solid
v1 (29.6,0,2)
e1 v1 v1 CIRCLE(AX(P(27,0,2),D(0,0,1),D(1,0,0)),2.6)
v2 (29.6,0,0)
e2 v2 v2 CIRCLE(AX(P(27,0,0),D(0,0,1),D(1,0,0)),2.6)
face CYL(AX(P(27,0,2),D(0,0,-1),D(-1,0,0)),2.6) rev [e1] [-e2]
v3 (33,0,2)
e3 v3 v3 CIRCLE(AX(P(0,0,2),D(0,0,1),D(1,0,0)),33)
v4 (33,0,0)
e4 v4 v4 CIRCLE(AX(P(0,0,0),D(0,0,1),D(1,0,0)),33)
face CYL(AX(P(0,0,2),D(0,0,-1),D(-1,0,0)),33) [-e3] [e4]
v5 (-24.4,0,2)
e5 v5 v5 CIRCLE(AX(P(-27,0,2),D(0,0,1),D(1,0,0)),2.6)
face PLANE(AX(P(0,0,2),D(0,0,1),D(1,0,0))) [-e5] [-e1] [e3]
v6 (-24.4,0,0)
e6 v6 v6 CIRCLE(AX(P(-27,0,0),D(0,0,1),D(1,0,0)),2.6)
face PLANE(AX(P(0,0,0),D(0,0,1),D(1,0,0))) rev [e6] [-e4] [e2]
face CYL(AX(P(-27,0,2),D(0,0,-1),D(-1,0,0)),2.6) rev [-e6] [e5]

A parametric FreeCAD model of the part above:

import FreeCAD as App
import Part
import Sketcher

doc = App.newDocument("Part")
body = doc.addObject("PartDesign::Body", "Body")

# Sketch on XY plane
sketch1 = doc.addObject("Sketcher::SketchObject", "Sketch")
body.addObject(sketch1)
sketch1.AttachmentSupport = (doc.XY_Plane, [""])
sketch1.MapMode = "FlatFace"
sketch1.addGeometry(Part.Circle(App.Vector(0, 0, 0), App.Vector(0, 0, 1), 33), False)
sketch1.addGeometry(Part.Circle(App.Vector(-27, 0, 0), App.Vector(0, 0, 1), 2.6), False)
sketch1.addGeometry(Part.Circle(App.Vector(27, 0, 0), App.Vector(0, 0, 1), 2.6), False)
sketch1.addConstraint(Sketcher.Constraint("Coincident", 0, 3, -1, 1))
sketch1.addConstraint(Sketcher.Constraint("Equal", 1, 2))
sketch1.addConstraint(Sketcher.Constraint("Symmetric", 1, 3, 2, 3, -1, 1))
sketch1.addConstraint(Sketcher.Constraint("PointOnObject", 1, 3, -1))
sketch1.addConstraint(Sketcher.Constraint("Diameter", 0, 66.0))
sketch1.addConstraint(Sketcher.Constraint("Diameter", 1, 5.2))
sketch1.addConstraint(Sketcher.Constraint("DistanceX", 1, 3, -1, 1, 27.0))
pad1 = doc.addObject("PartDesign::Pad", "Pad")
body.addObject(pad1)
pad1.Profile = sketch1
pad1.Length = 2

doc.recompute()
